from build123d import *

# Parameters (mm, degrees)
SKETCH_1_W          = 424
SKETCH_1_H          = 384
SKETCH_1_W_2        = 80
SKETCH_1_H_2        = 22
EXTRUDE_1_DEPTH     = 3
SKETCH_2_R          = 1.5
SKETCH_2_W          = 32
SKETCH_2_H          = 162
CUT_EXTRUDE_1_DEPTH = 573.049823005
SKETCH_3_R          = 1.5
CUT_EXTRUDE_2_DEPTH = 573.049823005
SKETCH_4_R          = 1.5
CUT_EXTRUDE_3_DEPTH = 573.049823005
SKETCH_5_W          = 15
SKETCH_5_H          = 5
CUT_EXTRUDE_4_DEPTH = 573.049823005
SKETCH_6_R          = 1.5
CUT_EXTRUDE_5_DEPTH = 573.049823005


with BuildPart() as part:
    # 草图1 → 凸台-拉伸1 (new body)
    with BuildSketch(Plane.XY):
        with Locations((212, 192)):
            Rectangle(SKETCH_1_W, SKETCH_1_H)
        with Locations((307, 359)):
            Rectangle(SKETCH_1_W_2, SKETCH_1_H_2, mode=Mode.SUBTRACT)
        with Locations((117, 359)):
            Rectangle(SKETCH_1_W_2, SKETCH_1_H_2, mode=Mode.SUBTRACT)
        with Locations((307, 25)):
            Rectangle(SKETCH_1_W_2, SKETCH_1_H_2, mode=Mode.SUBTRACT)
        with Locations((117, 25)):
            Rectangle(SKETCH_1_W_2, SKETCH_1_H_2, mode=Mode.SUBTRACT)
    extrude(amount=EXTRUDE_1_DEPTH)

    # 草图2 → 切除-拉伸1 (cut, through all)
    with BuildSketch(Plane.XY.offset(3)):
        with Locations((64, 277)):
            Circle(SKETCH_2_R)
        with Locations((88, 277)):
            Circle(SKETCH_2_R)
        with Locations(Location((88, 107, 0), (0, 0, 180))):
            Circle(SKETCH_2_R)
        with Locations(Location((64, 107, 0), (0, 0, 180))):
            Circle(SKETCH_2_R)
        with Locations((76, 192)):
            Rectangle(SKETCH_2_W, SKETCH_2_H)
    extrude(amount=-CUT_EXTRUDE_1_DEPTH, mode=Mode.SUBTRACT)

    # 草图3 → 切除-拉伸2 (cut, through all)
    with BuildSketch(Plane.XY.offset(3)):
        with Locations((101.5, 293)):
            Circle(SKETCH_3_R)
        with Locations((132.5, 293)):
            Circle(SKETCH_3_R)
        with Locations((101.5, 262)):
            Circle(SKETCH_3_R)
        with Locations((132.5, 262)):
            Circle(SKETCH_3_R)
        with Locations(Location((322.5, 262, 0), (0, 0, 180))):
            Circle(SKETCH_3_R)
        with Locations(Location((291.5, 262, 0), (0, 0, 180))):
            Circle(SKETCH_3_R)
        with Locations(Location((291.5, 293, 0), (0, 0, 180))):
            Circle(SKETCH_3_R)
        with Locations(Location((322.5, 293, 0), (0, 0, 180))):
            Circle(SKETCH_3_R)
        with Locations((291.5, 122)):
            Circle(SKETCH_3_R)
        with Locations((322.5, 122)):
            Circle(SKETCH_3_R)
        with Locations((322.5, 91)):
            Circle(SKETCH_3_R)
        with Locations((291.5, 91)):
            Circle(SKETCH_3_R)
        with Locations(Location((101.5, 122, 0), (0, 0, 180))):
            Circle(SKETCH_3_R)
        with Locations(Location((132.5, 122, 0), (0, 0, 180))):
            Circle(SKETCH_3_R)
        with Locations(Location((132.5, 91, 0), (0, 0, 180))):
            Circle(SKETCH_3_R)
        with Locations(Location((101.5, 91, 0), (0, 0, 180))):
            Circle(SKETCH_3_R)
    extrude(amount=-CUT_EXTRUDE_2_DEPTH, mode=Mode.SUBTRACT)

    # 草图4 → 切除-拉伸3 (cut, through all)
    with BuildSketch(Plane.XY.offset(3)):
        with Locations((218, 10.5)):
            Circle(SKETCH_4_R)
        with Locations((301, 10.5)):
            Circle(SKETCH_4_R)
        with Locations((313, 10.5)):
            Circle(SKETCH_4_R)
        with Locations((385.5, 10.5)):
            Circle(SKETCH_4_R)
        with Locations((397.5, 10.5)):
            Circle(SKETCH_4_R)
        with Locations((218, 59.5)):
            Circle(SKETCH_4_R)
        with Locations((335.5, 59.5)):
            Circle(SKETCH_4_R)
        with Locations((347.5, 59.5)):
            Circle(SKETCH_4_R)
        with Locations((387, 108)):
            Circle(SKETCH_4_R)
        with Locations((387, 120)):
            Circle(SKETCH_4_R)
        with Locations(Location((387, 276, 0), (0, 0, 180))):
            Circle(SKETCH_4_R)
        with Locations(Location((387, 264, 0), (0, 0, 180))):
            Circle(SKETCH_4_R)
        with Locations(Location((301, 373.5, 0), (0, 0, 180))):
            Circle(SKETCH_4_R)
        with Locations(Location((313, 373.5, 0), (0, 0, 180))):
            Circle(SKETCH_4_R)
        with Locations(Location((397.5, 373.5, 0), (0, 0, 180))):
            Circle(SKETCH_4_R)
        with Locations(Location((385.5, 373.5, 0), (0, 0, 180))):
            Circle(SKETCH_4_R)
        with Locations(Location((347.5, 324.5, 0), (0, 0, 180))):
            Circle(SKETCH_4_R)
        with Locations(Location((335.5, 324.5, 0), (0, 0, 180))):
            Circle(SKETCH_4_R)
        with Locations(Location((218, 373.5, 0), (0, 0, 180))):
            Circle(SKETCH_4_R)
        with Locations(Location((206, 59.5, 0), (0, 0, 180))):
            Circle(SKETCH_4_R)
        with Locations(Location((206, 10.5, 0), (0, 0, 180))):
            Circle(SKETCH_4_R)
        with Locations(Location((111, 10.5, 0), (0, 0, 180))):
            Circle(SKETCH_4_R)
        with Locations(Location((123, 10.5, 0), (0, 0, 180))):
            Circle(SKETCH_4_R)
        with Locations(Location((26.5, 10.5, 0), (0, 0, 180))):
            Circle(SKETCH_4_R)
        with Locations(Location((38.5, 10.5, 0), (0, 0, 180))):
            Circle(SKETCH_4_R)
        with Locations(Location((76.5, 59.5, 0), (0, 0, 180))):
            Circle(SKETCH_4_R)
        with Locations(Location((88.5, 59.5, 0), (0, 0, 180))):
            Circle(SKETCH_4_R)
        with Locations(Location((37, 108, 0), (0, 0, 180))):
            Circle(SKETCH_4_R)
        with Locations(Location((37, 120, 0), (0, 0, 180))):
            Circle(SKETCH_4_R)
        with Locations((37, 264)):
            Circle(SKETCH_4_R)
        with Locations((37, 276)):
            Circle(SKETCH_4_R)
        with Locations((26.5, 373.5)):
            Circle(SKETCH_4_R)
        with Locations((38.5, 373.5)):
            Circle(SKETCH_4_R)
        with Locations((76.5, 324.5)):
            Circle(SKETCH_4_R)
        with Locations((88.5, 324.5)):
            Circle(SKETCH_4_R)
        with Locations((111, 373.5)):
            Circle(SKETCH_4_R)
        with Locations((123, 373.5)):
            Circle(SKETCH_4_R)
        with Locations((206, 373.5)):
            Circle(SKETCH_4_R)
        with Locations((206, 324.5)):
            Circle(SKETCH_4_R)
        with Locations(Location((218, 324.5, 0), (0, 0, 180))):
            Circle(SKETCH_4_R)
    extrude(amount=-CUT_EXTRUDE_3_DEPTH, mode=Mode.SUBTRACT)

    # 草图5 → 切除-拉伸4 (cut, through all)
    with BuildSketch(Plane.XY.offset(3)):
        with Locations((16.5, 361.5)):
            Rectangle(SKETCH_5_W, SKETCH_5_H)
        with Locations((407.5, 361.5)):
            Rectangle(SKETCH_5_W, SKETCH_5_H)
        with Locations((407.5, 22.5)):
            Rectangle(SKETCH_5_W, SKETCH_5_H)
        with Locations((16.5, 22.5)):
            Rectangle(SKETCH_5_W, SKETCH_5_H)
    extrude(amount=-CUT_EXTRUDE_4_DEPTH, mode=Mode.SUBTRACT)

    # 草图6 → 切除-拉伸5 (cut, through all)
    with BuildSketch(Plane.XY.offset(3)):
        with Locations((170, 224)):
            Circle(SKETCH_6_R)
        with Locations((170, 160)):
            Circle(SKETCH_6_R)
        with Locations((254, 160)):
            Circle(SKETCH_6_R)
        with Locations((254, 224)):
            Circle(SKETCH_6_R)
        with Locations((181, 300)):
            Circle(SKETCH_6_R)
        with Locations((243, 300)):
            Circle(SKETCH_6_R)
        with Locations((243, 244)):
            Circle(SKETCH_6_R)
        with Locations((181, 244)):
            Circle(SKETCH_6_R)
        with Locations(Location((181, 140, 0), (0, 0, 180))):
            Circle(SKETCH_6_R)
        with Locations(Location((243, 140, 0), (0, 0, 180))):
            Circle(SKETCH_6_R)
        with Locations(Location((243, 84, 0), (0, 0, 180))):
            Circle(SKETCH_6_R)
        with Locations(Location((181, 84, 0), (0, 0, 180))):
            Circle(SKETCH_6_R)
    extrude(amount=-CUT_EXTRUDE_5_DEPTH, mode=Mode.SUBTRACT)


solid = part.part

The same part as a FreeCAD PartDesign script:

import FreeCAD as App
import Part
import Sketcher


def add_polygon(sketch, points):
    """Adds a closed chain of lines whose ends are joined by coincident constraints."""
    first, n = sketch.GeometryCount, len(points)
    for a, b in zip(points, points[1:] + points[:1]):
        sketch.addGeometry(Part.LineSegment(App.Vector(*a, 0), App.Vector(*b, 0)), False)
    for i in range(n):
        sketch.addConstraint(Sketcher.Constraint("Coincident", first + i, 2, first + (i + 1) % n, 1))

doc = App.newDocument("Part")
params = doc.addObject("Spreadsheet::Sheet", "Params")
for row, (alias, value) in enumerate([
    ("sketch1_width", "424 mm"),
    ("sketch1_width2", "80 mm"),
    ("sketch1_height", "384 mm"),
    ("sketch1_height2", "22 mm"),
    ("pad1_length", "3 mm"),
    ("sketch2_diameter", "3 mm"),
    ("sketch2_width", "32 mm"),
    ("sketch2_height", "162 mm"),
    ("sketch3_diameter", "3 mm"),
    ("sketch4_diameter", "3 mm"),
    ("sketch5_width", "15 mm"),
    ("sketch5_height", "5 mm"),
    ("sketch6_diameter", "3 mm"),
], start=1):
    params.set(f"A{row}", alias)
    params.set(f"B{row}", "=" + value)
    params.setAlias(f"B{row}", alias)

body = doc.addObject("PartDesign::Body", "Body")

sketch1 = body.newObject("Sketcher::SketchObject", "Sketch")
sketch1.AttachmentSupport = (doc.getObject("XY_Plane"), [""])
sketch1.MapMode = "FlatFace"
add_polygon(sketch1, [(0, 384), (0, 0), (424, 0), (424, 384)])
add_polygon(sketch1, [(157, 14), (77, 14), (77, 36), (157, 36)])
add_polygon(sketch1, [(347, 14), (267, 14), (267, 36), (347, 36)])
add_polygon(sketch1, [(157, 348), (77, 348), (77, 370), (157, 370)])
add_polygon(sketch1, [(347, 348), (267, 348), (267, 370), (347, 370)])
sketch1.addConstraint(Sketcher.Constraint("Vertical", 0))
sketch1.addConstraint(Sketcher.Constraint("Horizontal", 1))
sketch1.addConstraint(Sketcher.Constraint("Vertical", 2))
sketch1.addConstraint(Sketcher.Constraint("Horizontal", 3))
sketch1.addConstraint(Sketcher.Constraint("Horizontal", 4))
sketch1.addConstraint(Sketcher.Constraint("Vertical", 5))
sketch1.addConstraint(Sketcher.Constraint("Horizontal", 6))
sketch1.addConstraint(Sketcher.Constraint("Vertical", 7))
sketch1.addConstraint(Sketcher.Constraint("Horizontal", 8))
sketch1.addConstraint(Sketcher.Constraint("Vertical", 9))
sketch1.addConstraint(Sketcher.Constraint("Horizontal", 10))
sketch1.addConstraint(Sketcher.Constraint("Vertical", 11))
sketch1.addConstraint(Sketcher.Constraint("Horizontal", 12))
sketch1.addConstraint(Sketcher.Constraint("Vertical", 13))
sketch1.addConstraint(Sketcher.Constraint("Horizontal", 14))
sketch1.addConstraint(Sketcher.Constraint("Vertical", 15))
sketch1.addConstraint(Sketcher.Constraint("Horizontal", 16))
sketch1.addConstraint(Sketcher.Constraint("Vertical", 17))
sketch1.addConstraint(Sketcher.Constraint("Horizontal", 18))
sketch1.addConstraint(Sketcher.Constraint("Vertical", 19))
sketch1.addConstraint(Sketcher.Constraint("Coincident", 0, 2, -1, 1))
sketch1.addConstraint(Sketcher.Constraint("Horizontal", 7, 2, 8, 2))
sketch1.addConstraint(Sketcher.Constraint("Horizontal", 6, 2, 9, 2))
sketch1.addConstraint(Sketcher.Constraint("Horizontal", 15, 2, 16, 2))
sketch1.addConstraint(Sketcher.Constraint("Horizontal", 14, 2, 17, 2))
sketch1.addConstraint(Sketcher.Constraint("Vertical", 5, 2, 12, 2))
sketch1.addConstraint(Sketcher.Constraint("Vertical", 7, 2, 14, 2))
sketch1.addConstraint(Sketcher.Constraint("Vertical", 9, 2, 16, 2))
sketch1.addConstraint(Sketcher.Constraint("Vertical", 11, 2, 18, 2))
sketch1.addConstraint(Sketcher.Constraint("Equal", 6, 8))
sketch1.addConstraint(Sketcher.Constraint("Equal", 11, 13))
sketch1.addConstraint(Sketcher.Constraint("DistanceX", 1, 1, 1, 2, 424.0))
sketch1.addConstraint(Sketcher.Constraint("DistanceX", 4, 2, 4, 1, 80.0))
sketch1.addConstraint(Sketcher.Constraint("DistanceY", 0, 2, 0, 1, 384.0))
sketch1.addConstraint(Sketcher.Constraint("DistanceY", 5, 1, 5, 2, 22.0))
sketch1.addConstraint(Sketcher.Constraint("DistanceX", -1, 1, 4, 2, 77.0))
sketch1.addConstraint(Sketcher.Constraint("DistanceY", -1, 1, 4, 2, 14.0))
sketch1.addConstraint(Sketcher.Constraint("DistanceX", -1, 1, 8, 2, 267.0))
sketch1.addConstraint(Sketcher.Constraint("DistanceY", -1, 1, 12, 2, 348.0))
sketch1.setExpression("Constraints[51]", "Params.sketch1_width")
sketch1.setExpression("Constraints[52]", "Params.sketch1_width2")
sketch1.setExpression("Constraints[53]", "Params.sketch1_height")
sketch1.setExpression("Constraints[54]", "Params.sketch1_height2")
pad1 = body.newObject("PartDesign::Pad", "Pad")
pad1.Profile = sketch1
pad1.setExpression("Length", "Params.pad1_length")

sketch2 = body.newObject("Sketcher::SketchObject", "Sketch001")
sketch2.AttachmentSupport = (doc.getObject("XY_Plane"), [""])
sketch2.MapMode = "FlatFace"
sketch2.AttachmentOffset = App.Placement(App.Vector(0, 0, 3), App.Rotation())
sketch2.addGeometry(Part.Circle(App.Vector(64, 277, 0), App.Vector(0, 0, 1), 1.5), False)
sketch2.addGeometry(Part.Circle(App.Vector(88, 277, 0), App.Vector(0, 0, 1), 1.5), False)
sketch2.addGeometry(Part.Circle(App.Vector(88, 107, 0), App.Vector(0, 0, 1), 1.5), False)
sketch2.addGeometry(Part.Circle(App.Vector(64, 107, 0), App.Vector(0, 0, 1), 1.5), False)
add_polygon(sketch2, [(60, 273), (60, 111), (92, 111), (92, 273)])
sketch2.addConstraint(Sketcher.Constraint("Vertical", 4))
sketch2.addConstraint(Sketcher.Constraint("Horizontal", 5))
sketch2.addConstraint(Sketcher.Constraint("Vertical", 6))
sketch2.addConstraint(Sketcher.Constraint("Horizontal", 7))
sketch2.addConstraint(Sketcher.Constraint("Equal", 0, 1))
sketch2.addConstraint(Sketcher.Constraint("Equal", 1, 2))
sketch2.addConstraint(Sketcher.Constraint("Equal", 2, 3))
sketch2.addConstraint(Sketcher.Constraint("Horizontal", 0, 3, 1, 3))
sketch2.addConstraint(Sketcher.Constraint("Horizontal", 2, 3, 3, 3))
sketch2.addConstraint(Sketcher.Constraint("Vertical", 1, 3, 2, 3))
sketch2.addConstraint(Sketcher.Constraint("Vertical", 0, 3, 3, 3))
sketch2.addConstraint(Sketcher.Constraint("Diameter", 0, 3.0))
sketch2.addConstraint(Sketcher.Constraint("DistanceX", 5, 1, 5, 2, 32.0))
sketch2.addConstraint(Sketcher.Constraint("DistanceY", 4, 2, 4, 1, 162.0))
sketch2.addConstraint(Sketcher.Constraint("DistanceX", -1, 1, 0, 3, 64.0))
sketch2.addConstraint(Sketcher.Constraint("DistanceY", -1, 1, 0, 3, 277.0))
sketch2.addConstraint(Sketcher.Constraint("DistanceX", -1, 1, 1, 3, 88.0))
sketch2.addConstraint(Sketcher.Constraint("DistanceY", -1, 1, 2, 3, 107.0))
sketch2.addConstraint(Sketcher.Constraint("DistanceX", -1, 1, 4, 2, 60.0))
sketch2.addConstraint(Sketcher.Constraint("DistanceY", -1, 1, 4, 2, 111.0))
sketch2.setExpression("Constraints[15]", "Params.sketch2_diameter")
sketch2.setExpression("Constraints[16]", "Params.sketch2_width")
sketch2.setExpression("Constraints[17]", "Params.sketch2_height")
pocket1 = body.newObject("PartDesign::Pocket", "Pocket")
pocket1.Profile = sketch2
pocket1.Type = "ThroughAll"

sketch3 = body.newObject("Sketcher::SketchObject", "Sketch002")
sketch3.AttachmentSupport = (doc.getObject("XY_Plane"), [""])
sketch3.MapMode = "FlatFace"
sketch3.AttachmentOffset = App.Placement(App.Vector(0, 0, 3), App.Rotation())
sketch3.addGeometry(Part.Circle(App.Vector(101.5, 293, 0), App.Vector(0, 0, 1), 1.5), False)
sketch3.addGeometry(Part.Circle(App.Vector(132.5, 293, 0), App.Vector(0, 0, 1), 1.5), False)
sketch3.addGeometry(Part.Circle(App.Vector(101.5, 262, 0), App.Vector(0, 0, 1), 1.5), False)
sketch3.addGeometry(Part.Circle(App.Vector(132.5, 262, 0), App.Vector(0, 0, 1), 1.5), False)
sketch3.addGeometry(Part.Circle(App.Vector(322.5, 262, 0), App.Vector(0, 0, 1), 1.5), False)
sketch3.addGeometry(Part.Circle(App.Vector(291.5, 262, 0), App.Vector(0, 0, 1), 1.5), False)
sketch3.addGeometry(Part.Circle(App.Vector(291.5, 293, 0), App.Vector(0, 0, 1), 1.5), False)
sketch3.addGeometry(Part.Circle(App.Vector(322.5, 293, 0), App.Vector(0, 0, 1), 1.5), False)
sketch3.addGeometry(Part.Circle(App.Vector(291.5, 122, 0), App.Vector(0, 0, 1), 1.5), False)
sketch3.addGeometry(Part.Circle(App.Vector(322.5, 122, 0), App.Vector(0, 0, 1), 1.5), False)
sketch3.addGeometry(Part.Circle(App.Vector(322.5, 91, 0), App.Vector(0, 0, 1), 1.5), False)
sketch3.addGeometry(Part.Circle(App.Vector(291.5, 91, 0), App.Vector(0, 0, 1), 1.5), False)
sketch3.addGeometry(Part.Circle(App.Vector(101.5, 122, 0), App.Vector(0, 0, 1), 1.5), False)
sketch3.addGeometry(Part.Circle(App.Vector(132.5, 122, 0), App.Vector(0, 0, 1), 1.5), False)
sketch3.addGeometry(Part.Circle(App.Vector(132.5, 91, 0), App.Vector(0, 0, 1), 1.5), False)
sketch3.addGeometry(Part.Circle(App.Vector(101.5, 91, 0), App.Vector(0, 0, 1), 1.5), False)
sketch3.addConstraint(Sketcher.Constraint("Equal", 0, 1))
sketch3.addConstraint(Sketcher.Constraint("Equal", 1, 2))
sketch3.addConstraint(Sketcher.Constraint("Equal", 2, 3))
sketch3.addConstraint(Sketcher.Constraint("Equal", 3, 4))
sketch3.addConstraint(Sketcher.Constraint("Equal", 4, 5))
sketch3.addConstraint(Sketcher.Constraint("Equal", 5, 6))
sketch3.addConstraint(Sketcher.Constraint("Equal", 6, 7))
sketch3.addConstraint(Sketcher.Constraint("Equal", 7, 8))
sketch3.addConstraint(Sketcher.Constraint("Equal", 8, 9))
sketch3.addConstraint(Sketcher.Constraint("Equal", 9, 10))
sketch3.addConstraint(Sketcher.Constraint("Equal", 10, 11))
sketch3.addConstraint(Sketcher.Constraint("Equal", 11, 12))
sketch3.addConstraint(Sketcher.Constraint("Equal", 12, 13))
sketch3.addConstraint(Sketcher.Constraint("Equal", 13, 14))
sketch3.addConstraint(Sketcher.Constraint("Equal", 14, 15))
sketch3.addConstraint(Sketcher.Constraint("Horizontal", 0, 3, 1, 3))
sketch3.addConstraint(Sketcher.Constraint("Horizontal", 2, 3, 3, 3))
sketch3.addConstraint(Sketcher.Constraint("Horizontal", 3, 3, 4, 3))
sketch3.addConstraint(Sketcher.Constraint("Horizontal", 4, 3, 5, 3))
sketch3.addConstraint(Sketcher.Constraint("Horizontal", 1, 3, 6, 3))
sketch3.addConstraint(Sketcher.Constraint("Horizontal", 6, 3, 7, 3))
sketch3.addConstraint(Sketcher.Constraint("Horizontal", 8, 3, 9, 3))
sketch3.addConstraint(Sketcher.Constraint("Horizontal", 10, 3, 11, 3))
sketch3.addConstraint(Sketcher.Constraint("Horizontal", 9, 3, 12, 3))
sketch3.addConstraint(Sketcher.Constraint("Horizontal", 12, 3, 13, 3))
sketch3.addConstraint(Sketcher.Constraint("Horizontal", 11, 3, 14, 3))
sketch3.addConstraint(Sketcher.Constraint("Horizontal", 14, 3, 15, 3))
sketch3.addConstraint(Sketcher.Constraint("Vertical", 0, 3, 2, 3))
sketch3.addConstraint(Sketcher.Constraint("Vertical", 1, 3, 3, 3))
sketch3.addConstraint(Sketcher.Constraint("Vertical", 5, 3, 6, 3))
sketch3.addConstraint(Sketcher.Constraint("Vertical", 4, 3, 7, 3))
sketch3.addConstraint(Sketcher.Constraint("Vertical", 6, 3, 8, 3))
sketch3.addConstraint(Sketcher.Constraint("Vertical", 7, 3, 9, 3))
sketch3.addConstraint(Sketcher.Constraint("Vertical", 9, 3, 10, 3))
sketch3.addConstraint(Sketcher.Constraint("Vertical", 8, 3, 11, 3))
sketch3.addConstraint(Sketcher.Constraint("Vertical", 2, 3, 12, 3))
sketch3.addConstraint(Sketcher.Constraint("Vertical", 3, 3, 13, 3))
sketch3.addConstraint(Sketcher.Constraint("Vertical", 13, 3, 14, 3))
sketch3.addConstraint(Sketcher.Constraint("Vertical", 12, 3, 15, 3))
sketch3.addConstraint(Sketcher.Constraint("Diameter", 0, 3.0))
sketch3.addConstraint(Sketcher.Constraint("DistanceY", -1, 1, 0, 3, 293.0))
sketch3.addConstraint(Sketcher.Constraint("DistanceY", -1, 1, 2, 3, 262.0))
sketch3.addConstraint(Sketcher.Constraint("DistanceY", -1, 1, 8, 3, 122.0))
sketch3.addConstraint(Sketcher.Constraint("DistanceY", -1, 1, 10, 3, 91.0))
sketch3.addConstraint(Sketcher.Constraint("DistanceX", 0, 3, 1, 3, 31.0))
sketch3.addConstraint(Sketcher.Constraint("DistanceX", 3, 3, 4, 3, 190.0))
sketch3.addConstraint(Sketcher.Constraint("DistanceX", 5, 3, 4, 3, 31.0))
sketch3.addConstraint(Sketcher.Constraint("DistanceX", -1, 1, 0, 3, 101.5))
sketch3.setExpression("Constraints[39]", "Params.sketch3_diameter")
pocket2 = body.newObject("PartDesign::Pocket", "Pocket001")
pocket2.Profile = sketch3
pocket2.Type = "ThroughAll"

sketch4 = body.newObject("Sketcher::SketchObject", "Sketch003")
sketch4.AttachmentSupport = (doc.getObject("XY_Plane"), [""])
sketch4.MapMode = "FlatFace"
sketch4.AttachmentOffset = App.Placement(App.Vector(0, 0, 3), App.Rotation())
sketch4.addGeometry(Part.Circle(App.Vector(218, 10.5, 0), App.Vector(0, 0, 1), 1.5), False)
sketch4.addGeometry(Part.Circle(App.Vector(301, 10.5, 0), App.Vector(0, 0, 1), 1.5), False)
sketch4.addGeometry(Part.Circle(App.Vector(313, 10.5, 0), App.Vector(0, 0, 1), 1.5), False)
sketch4.addGeometry(Part.Circle(App.Vector(385.5, 10.5, 0), App.Vector(0, 0, 1), 1.5), False)
sketch4.addGeometry(Part.Circle(App.Vector(397.5, 10.5, 0), App.Vector(0, 0, 1), 1.5), False)
sketch4.addGeometry(Part.Circle(App.Vector(218, 59.5, 0), App.Vector(0, 0, 1), 1.5), False)
sketch4.addGeometry(Part.Circle(App.Vector(335.5, 59.5, 0), App.Vector(0, 0, 1), 1.5), False)
sketch4.addGeometry(Part.Circle(App.Vector(347.5, 59.5, 0), App.Vector(0, 0, 1), 1.5), False)
sketch4.addGeometry(Part.Circle(App.Vector(387, 108, 0), App.Vector(0, 0, 1), 1.5), False)
sketch4.addGeometry(Part.Circle(App.Vector(387, 120, 0), App.Vector(0, 0, 1), 1.5), False)
sketch4.addGeometry(Part.Circle(App.Vector(387, 276, 0), App.Vector(0, 0, 1), 1.5), False)
sketch4.addGeometry(Part.Circle(App.Vector(387, 264, 0), App.Vector(0, 0, 1), 1.5), False)
sketch4.addGeometry(Part.Circle(App.Vector(301, 373.5, 0), App.Vector(0, 0, 1), 1.5), False)
sketch4.addGeometry(Part.Circle(App.Vector(313, 373.5, 0), App.Vector(0, 0, 1), 1.5), False)
sketch4.addGeometry(Part.Circle(App.Vector(397.5, 373.5, 0), App.Vector(0, 0, 1), 1.5), False)
sketch4.addGeometry(Part.Circle(App.Vector(385.5, 373.5, 0), App.Vector(0, 0, 1), 1.5), False)
sketch4.addGeometry(Part.Circle(App.Vector(347.5, 324.5, 0), App.Vector(0, 0, 1), 1.5), False)
sketch4.addGeometry(Part.Circle(App.Vector(335.5, 324.5, 0), App.Vector(0, 0, 1), 1.5), False)
sketch4.addGeometry(Part.Circle(App.Vector(218, 373.5, 0), App.Vector(0, 0, 1), 1.5), False)
sketch4.addGeometry(Part.Circle(App.Vector(206, 59.5, 0), App.Vector(0, 0, 1), 1.5), False)
sketch4.addGeometry(Part.Circle(App.Vector(206, 10.5, 0), App.Vector(0, 0, 1), 1.5), False)
sketch4.addGeometry(Part.Circle(App.Vector(111, 10.5, 0), App.Vector(0, 0, 1), 1.5), False)
sketch4.addGeometry(Part.Circle(App.Vector(123, 10.5, 0), App.Vector(0, 0, 1), 1.5), False)
sketch4.addGeometry(Part.Circle(App.Vector(26.5, 10.5, 0), App.Vector(0, 0, 1), 1.5), False)
sketch4.addGeometry(Part.Circle(App.Vector(38.5, 10.5, 0), App.Vector(0, 0, 1), 1.5), False)
sketch4.addGeometry(Part.Circle(App.Vector(76.5, 59.5, 0), App.Vector(0, 0, 1), 1.5), False)
sketch4.addGeometry(Part.Circle(App.Vector(88.5, 59.5, 0), App.Vector(0, 0, 1), 1.5), False)
sketch4.addGeometry(Part.Circle(App.Vector(37, 108, 0), App.Vector(0, 0, 1), 1.5), False)
sketch4.addGeometry(Part.Circle(App.Vector(37, 120, 0), App.Vector(0, 0, 1), 1.5), False)
sketch4.addGeometry(Part.Circle(App.Vector(37, 264, 0), App.Vector(0, 0, 1), 1.5), False)
sketch4.addGeometry(Part.Circle(App.Vector(37, 276, 0), App.Vector(0, 0, 1), 1.5), False)
sketch4.addGeometry(Part.Circle(App.Vector(26.5, 373.5, 0), App.Vector(0, 0, 1), 1.5), False)
sketch4.addGeometry(Part.Circle(App.Vector(38.5, 373.5, 0), App.Vector(0, 0, 1), 1.5), False)
sketch4.addGeometry(Part.Circle(App.Vector(76.5, 324.5, 0), App.Vector(0, 0, 1), 1.5), False)
sketch4.addGeometry(Part.Circle(App.Vector(88.5, 324.5, 0), App.Vector(0, 0, 1), 1.5), False)
sketch4.addGeometry(Part.Circle(App.Vector(111, 373.5, 0), App.Vector(0, 0, 1), 1.5), False)
sketch4.addGeometry(Part.Circle(App.Vector(123, 373.5, 0), App.Vector(0, 0, 1), 1.5), False)
sketch4.addGeometry(Part.Circle(App.Vector(206, 373.5, 0), App.Vector(0, 0, 1), 1.5), False)
sketch4.addGeometry(Part.Circle(App.Vector(206, 324.5, 0), App.Vector(0, 0, 1), 1.5), False)
sketch4.addGeometry(Part.Circle(App.Vector(218, 324.5, 0), App.Vector(0, 0, 1), 1.5), False)
sketch4.addConstraint(Sketcher.Constraint("Equal", 0, 1))
sketch4.addConstraint(Sketcher.Constraint("Equal", 1, 2))
sketch4.addConstraint(Sketcher.Constraint("Equal", 2, 3))
sketch4.addConstraint(Sketcher.Constraint("Equal", 3, 4))
sketch4.addConstraint(Sketcher.Constraint("Equal", 4, 5))
sketch4.addConstraint(Sketcher.Constraint("Equal", 5, 6))
sketch4.addConstraint(Sketcher.Constraint("Equal", 6, 7))
sketch4.addConstraint(Sketcher.Constraint("Equal", 7, 8))
sketch4.addConstraint(Sketcher.Constraint("Equal", 8, 9))
sketch4.addConstraint(Sketcher.Constraint("Equal", 9, 10))
sketch4.addConstraint(Sketcher.Constraint("Equal", 10, 11))
sketch4.addConstraint(Sketcher.Constraint("Equal", 11, 12))
sketch4.addConstraint(Sketcher.Constraint("Equal", 12, 13))
sketch4.addConstraint(Sketcher.Constraint("Equal", 13, 14))
sketch4.addConstraint(Sketcher.Constraint("Equal", 14, 15))
sketch4.addConstraint(Sketcher.Constraint("Equal", 15, 16))
sketch4.addConstraint(Sketcher.Constraint("Equal", 16, 17))
sketch4.addConstraint(Sketcher.Constraint("Equal", 17, 18))
sketch4.addConstraint(Sketcher.Constraint("Equal", 18, 19))
sketch4.addConstraint(Sketcher.Constraint("Equal", 19, 20))
sketch4.addConstraint(Sketcher.Constraint("Equal", 20, 21))
sketch4.addConstraint(Sketcher.Constraint("Equal", 21, 22))
sketch4.addConstraint(Sketcher.Constraint("Equal", 22, 23))
sketch4.addConstraint(Sketcher.Constraint("Equal", 23, 24))
sketch4.addConstraint(Sketcher.Constraint("Equal", 24, 25))
sketch4.addConstraint(Sketcher.Constraint("Equal", 25, 26))
sketch4.addConstraint(Sketcher.Constraint("Equal", 26, 27))
sketch4.addConstraint(Sketcher.Constraint("Equal", 27, 28))
sketch4.addConstraint(Sketcher.Constraint("Equal", 28, 29))
sketch4.addConstraint(Sketcher.Constraint("Equal", 29, 30))
sketch4.addConstraint(Sketcher.Constraint("Equal", 30, 31))
sketch4.addConstraint(Sketcher.Constraint("Equal", 31, 32))
sketch4.addConstraint(Sketcher.Constraint("Equal", 32, 33))
sketch4.addConstraint(Sketcher.Constraint("Equal", 33, 34))
sketch4.addConstraint(Sketcher.Constraint("Equal", 34, 35))
sketch4.addConstraint(Sketcher.Constraint("Equal", 35, 36))
sketch4.addConstraint(Sketcher.Constraint("Equal", 36, 37))
sketch4.addConstraint(Sketcher.Constraint("Equal", 37, 38))
sketch4.addConstraint(Sketcher.Constraint("Equal", 38, 39))
sketch4.addConstraint(Sketcher.Constraint("Horizontal", 0, 3, 1, 3))
sketch4.addConstraint(Sketcher.Constraint("Horizontal", 1, 3, 2, 3))
sketch4.addConstraint(Sketcher.Constraint("Horizontal", 2, 3, 3, 3))
sketch4.addConstraint(Sketcher.Constraint("Horizontal", 3, 3, 4, 3))
sketch4.addConstraint(Sketcher.Constraint("Horizontal", 5, 3, 6, 3))
sketch4.addConstraint(Sketcher.Constraint("Horizontal", 6, 3, 7, 3))
sketch4.addConstraint(Sketcher.Constraint("Horizontal", 12, 3, 13, 3))
sketch4.addConstraint(Sketcher.Constraint("Horizontal", 13, 3, 14, 3))
sketch4.addConstraint(Sketcher.Constraint("Horizontal", 14, 3, 15, 3))
sketch4.addConstraint(Sketcher.Constraint("Horizontal", 16, 3, 17, 3))
sketch4.addConstraint(Sketcher.Constraint("Horizontal", 15, 3, 18, 3))
sketch4.addConstraint(Sketcher.Constraint("Horizontal", 7, 3, 19, 3))
sketch4.addConstraint(Sketcher.Constraint("Horizontal", 4, 3, 20, 3))
sketch4.addConstraint(Sketcher.Constraint("Horizontal", 20, 3, 21, 3))
sketch4.addConstraint(Sketcher.Constraint("Horizontal", 21, 3, 22, 3))
sketch4.addConstraint(Sketcher.Constraint("Horizontal", 22, 3, 23, 3))
sketch4.addConstraint(Sketcher.Constraint("Horizontal", 23, 3, 24, 3))
sketch4.addConstraint(Sketcher.Constraint("Horizontal", 19, 3, 25, 3))
sketch4.addConstraint(Sketcher.Constraint("Horizontal", 25, 3, 26, 3))
sketch4.addConstraint(Sketcher.Constraint("Horizontal", 8, 3, 27, 3))
sketch4.addConstraint(Sketcher.Constraint("Horizontal", 9, 3, 28, 3))
sketch4.addConstraint(Sketcher.Constraint("Horizontal", 11, 3, 29, 3))
sketch4.addConstraint(Sketcher.Constraint("Horizontal", 10, 3, 30, 3))
sketch4.addConstraint(Sketcher.Constraint("Horizontal", 18, 3, 31, 3))
sketch4.addConstraint(Sketcher.Constraint("Horizontal", 31, 3, 32, 3))
sketch4.addConstraint(Sketcher.Constraint("Horizontal", 17, 3, 33, 3))
sketch4.addConstraint(Sketcher.Constraint("Horizontal", 33, 3, 34, 3))
sketch4.addConstraint(Sketcher.Constraint("Horizontal", 32, 3, 35, 3))
sketch4.addConstraint(Sketcher.Constraint("Horizontal", 35, 3, 36, 3))
sketch4.addConstraint(Sketcher.Constraint("Horizontal", 36, 3, 37, 3))
sketch4.addConstraint(Sketcher.Constraint("Horizontal", 34, 3, 38, 3))
sketch4.addConstraint(Sketcher.Constraint("Horizontal", 38, 3, 39, 3))
sketch4.addConstraint(Sketcher.Constraint("Vertical", 0, 3, 5, 3))
sketch4.addConstraint(Sketcher.Constraint("Vertical", 8, 3, 9, 3))
sketch4.addConstraint(Sketcher.Constraint("Vertical", 9, 3, 10, 3))
sketch4.addConstraint(Sketcher.Constraint("Vertical", 10, 3, 11, 3))
sketch4.addConstraint(Sketcher.Constraint("Vertical", 1, 3, 12, 3))
sketch4.addConstraint(Sketcher.Constraint("Vertical", 2, 3, 13, 3))
sketch4.addConstraint(Sketcher.Constraint("Vertical", 4, 3, 14, 3))
sketch4.addConstraint(Sketcher.Constraint("Vertical", 3, 3, 15, 3))
sketch4.addConstraint(Sketcher.Constraint("Vertical", 7, 3, 16, 3))
sketch4.addConstraint(Sketcher.Constraint("Vertical", 6, 3, 17, 3))
sketch4.addConstraint(Sketcher.Constraint("Vertical", 5, 3, 18, 3))
sketch4.addConstraint(Sketcher.Constraint("Vertical", 19, 3, 20, 3))
sketch4.addConstraint(Sketcher.Constraint("Vertical", 27, 3, 28, 3))
sketch4.addConstraint(Sketcher.Constraint("Vertical", 28, 3, 29, 3))
sketch4.addConstraint(Sketcher.Constraint("Vertical", 29, 3, 30, 3))
sketch4.addConstraint(Sketcher.Constraint("Vertical", 23, 3, 31, 3))
sketch4.addConstraint(Sketcher.Constraint("Vertical", 24, 3, 32, 3))
sketch4.addConstraint(Sketcher.Constraint("Vertical", 25, 3, 33, 3))
sketch4.addConstraint(Sketcher.Constraint("Vertical", 26, 3, 34, 3))
sketch4.addConstraint(Sketcher.Constraint("Vertical", 21, 3, 35, 3))
sketch4.addConstraint(Sketcher.Constraint("Vertical", 22, 3, 36, 3))
sketch4.addConstraint(Sketcher.Constraint("Vertical", 20, 3, 37, 3))
sketch4.addConstraint(Sketcher.Constraint("Vertical", 37, 3, 38, 3))
sketch4.addConstraint(Sketcher.Constraint("Vertical", 18, 3, 39, 3))
sketch4.addConstraint(Sketcher.Constraint("Diameter", 0, 3.0))
sketch4.addConstraint(Sketcher.Constraint("DistanceX", -1, 1, 0, 3, 218.0))
sketch4.addConstraint(Sketcher.Constraint("DistanceX", -1, 1, 1, 3, 301.0))
sketch4.addConstraint(Sketcher.Constraint("DistanceX", -1, 1, 2, 3, 313.0))
sketch4.addConstraint(Sketcher.Constraint("DistanceX", -1, 1, 8, 3, 387.0))
sketch4.addConstraint(Sketcher.Constraint("DistanceY", -1, 1, 8, 3, 108.0))
sketch4.addConstraint(Sketcher.Constraint("DistanceY", -1, 1, 9, 3, 120.0))
sketch4.addConstraint(Sketcher.Constraint("DistanceY", -1, 1, 10, 3, 276.0))
sketch4.addConstraint(Sketcher.Constraint("DistanceY", -1, 1, 11, 3, 264.0))
sketch4.addConstraint(Sketcher.Constraint("DistanceX", -1, 1, 19, 3, 206.0))
sketch4.addConstraint(Sketcher.Constraint("DistanceX", -1, 1, 21, 3, 111.0))
sketch4.addConstraint(Sketcher.Constraint("DistanceX", -1, 1, 22, 3, 123.0))
sketch4.addConstraint(Sketcher.Constraint("DistanceX", -1, 1, 27, 3, 37.0))
sketch4.addConstraint(Sketcher.Constraint("DistanceX", 3, 3, 4, 3, 12.0))
sketch4.addConstraint(Sketcher.Constraint("DistanceY", 0, 3, 5, 3, 49.0))
sketch4.addConstraint(Sketcher.Constraint("DistanceX", 6, 3, 3, 3, 50.0))
sketch4.addConstraint(Sketcher.Constraint("DistanceX", 6, 3, 7, 3, 12.0))
sketch4.addConstraint(Sketcher.Constraint("DistanceY", 6, 3, 12, 3, 314.0))
sketch4.addConstraint(Sketcher.Constraint("DistanceY", 16, 3, 13, 3, 49.0))
sketch4.addConstraint(Sketcher.Constraint("DistanceX", 23, 3, 24, 3, 12.0))
sketch4.addConstraint(Sketcher.Constraint("DistanceX", 24, 3, 25, 3, 38.0))
sketch4.addConstraint(Sketcher.Constraint("DistanceX", 25, 3, 26, 3, 12.0))
sketch4.addConstraint(Sketcher.Constraint("DistanceY", -1, 1, 0, 3, 10.5))
sketch4.addConstraint(Sketcher.Constraint("DistanceX", -1, 1, 3, 3, 385.5))
sketch4.addConstraint(Sketcher.Constraint("DistanceX", -1, 1, 23, 3, 26.5))
sketch4.setExpression("Constraints[95]", "Params.sketch4_diameter")
pocket3 = body.newObject("PartDesign::Pocket", "Pocket002")
pocket3.Profile = sketch4
pocket3.Type = "ThroughAll"

sketch5 = body.newObject("Sketcher::SketchObject", "Sketch004")
sketch5.AttachmentSupport = (doc.getObject("XY_Plane"), [""])
sketch5.MapMode = "FlatFace"
sketch5.AttachmentOffset = App.Placement(App.Vector(0, 0, 3), App.Rotation())
add_polygon(sketch5, [(9, 364), (9, 359), (24, 359), (24, 364)])
add_polygon(sketch5, [(400, 364), (400, 359), (415, 359), (415, 364)])
add_polygon(sketch5, [(400, 25), (400, 20), (415, 20), (415, 25)])
add_polygon(sketch5, [(9, 25), (9, 20), (24, 20), (24, 25)])
sketch5.addConstraint(Sketcher.Constraint("Vertical", 0))
sketch5.addConstraint(Sketcher.Constraint("Horizontal", 1))
sketch5.addConstraint(Sketcher.Constraint("Vertical", 2))
sketch5.addConstraint(Sketcher.Constraint("Horizontal", 3))
sketch5.addConstraint(Sketcher.Constraint("Vertical", 4))
sketch5.addConstraint(Sketcher.Constraint("Horizontal", 5))
sketch5.addConstraint(Sketcher.Constraint("Vertical", 6))
sketch5.addConstraint(Sketcher.Constraint("Horizontal", 7))
sketch5.addConstraint(Sketcher.Constraint("Vertical", 8))
sketch5.addConstraint(Sketcher.Constraint("Horizontal", 9))
sketch5.addConstraint(Sketcher.Constraint("Vertical", 10))
sketch5.addConstraint(Sketcher.Constraint("Horizontal", 11))
sketch5.addConstraint(Sketcher.Constraint("Vertical", 12))
sketch5.addConstraint(Sketcher.Constraint("Horizontal", 13))
sketch5.addConstraint(Sketcher.Constraint("Vertical", 14))
sketch5.addConstraint(Sketcher.Constraint("Horizontal", 15))
sketch5.addConstraint(Sketcher.Constraint("Horizontal", 1, 2, 4, 2))
sketch5.addConstraint(Sketcher.Constraint("Horizontal", 3, 2, 6, 2))
sketch5.addConstraint(Sketcher.Constraint("Horizontal", 9, 2, 12, 2))
sketch5.addConstraint(Sketcher.Constraint("Horizontal", 11, 2, 14, 2))
sketch5.addConstraint(Sketcher.Constraint("Vertical", 7, 2, 8, 2))
sketch5.addConstraint(Sketcher.Constraint("Vertical", 6, 2, 9, 2))
sketch5.addConstraint(Sketcher.Constraint("Vertical", 3, 2, 12, 2))
sketch5.addConstraint(Sketcher.Constraint("Vertical", 2, 2, 13, 2))
sketch5.addConstraint(Sketcher.Constraint("Equal", 3, 5))
sketch5.addConstraint(Sketcher.Constraint("Equal", 6, 8))
sketch5.addConstraint(Sketcher.Constraint("DistanceX", 1, 1, 1, 2, 15.0))
sketch5.addConstraint(Sketcher.Constraint("DistanceY", 0, 2, 0, 1, 5.0))
sketch5.addConstraint(Sketcher.Constraint("DistanceX", -1, 1, 0, 2, 9.0))
sketch5.addConstraint(Sketcher.Constraint("DistanceY", -1, 1, 0, 2, 359.0))
sketch5.addConstraint(Sketcher.Constraint("DistanceX", -1, 1, 4, 2, 400.0))
sketch5.addConstraint(Sketcher.Constraint("DistanceY", -1, 1, 8, 2, 20.0))
sketch5.setExpression("Constraints[42]", "Params.sketch5_width")
sketch5.setExpression("Constraints[43]", "Params.sketch5_height")
pocket4 = body.newObject("PartDesign::Pocket", "Pocket003")
pocket4.Profile = sketch5
pocket4.Type = "ThroughAll"

sketch6 = body.newObject("Sketcher::SketchObject", "Sketch005")
sketch6.AttachmentSupport = (doc.getObject("XY_Plane"), [""])
sketch6.MapMode = "FlatFace"
sketch6.AttachmentOffset = App.Placement(App.Vector(0, 0, 3), App.Rotation())
sketch6.addGeometry(Part.Circle(App.Vector(170, 224, 0), App.Vector(0, 0, 1), 1.5), False)
sketch6.addGeometry(Part.Circle(App.Vector(170, 160, 0), App.Vector(0, 0, 1), 1.5), False)
sketch6.addGeometry(Part.Circle(App.Vector(254, 160, 0), App.Vector(0, 0, 1), 1.5), False)
sketch6.addGeometry(Part.Circle(App.Vector(254, 224, 0), App.Vector(0, 0, 1), 1.5), False)
sketch6.addGeometry(Part.Circle(App.Vector(181, 300, 0), App.Vector(0, 0, 1), 1.5), False)
sketch6.addGeometry(Part.Circle(App.Vector(243, 300, 0), App.Vector(0, 0, 1), 1.5), False)
sketch6.addGeometry(Part.Circle(App.Vector(243, 244, 0), App.Vector(0, 0, 1), 1.5), False)
sketch6.addGeometry(Part.Circle(App.Vector(181, 244, 0), App.Vector(0, 0, 1), 1.5), False)
sketch6.addGeometry(Part.Circle(App.Vector(181, 140, 0), App.Vector(0, 0, 1), 1.5), False)
sketch6.addGeometry(Part.Circle(App.Vector(243, 140, 0), App.Vector(0, 0, 1), 1.5), False)
sketch6.addGeometry(Part.Circle(App.Vector(243, 84, 0), App.Vector(0, 0, 1), 1.5), False)
sketch6.addGeometry(Part.Circle(App.Vector(181, 84, 0), App.Vector(0, 0, 1), 1.5), False)
sketch6.addConstraint(Sketcher.Constraint("Equal", 0, 1))
sketch6.addConstraint(Sketcher.Constraint("Equal", 1, 2))
sketch6.addConstraint(Sketcher.Constraint("Equal", 2, 3))
sketch6.addConstraint(Sketcher.Constraint("Equal", 3, 4))
sketch6.addConstraint(Sketcher.Constraint("Equal", 4, 5))
sketch6.addConstraint(Sketcher.Constraint("Equal", 5, 6))
sketch6.addConstraint(Sketcher.Constraint("Equal", 6, 7))
sketch6.addConstraint(Sketcher.Constraint("Equal", 7, 8))
sketch6.addConstraint(Sketcher.Constraint("Equal", 8, 9))
sketch6.addConstraint(Sketcher.Constraint("Equal", 9, 10))
sketch6.addConstraint(Sketcher.Constraint("Equal", 10, 11))
sketch6.addConstraint(Sketcher.Constraint("Horizontal", 1, 3, 2, 3))
sketch6.addConstraint(Sketcher.Constraint("Horizontal", 0, 3, 3, 3))
sketch6.addConstraint(Sketcher.Constraint("Horizontal", 4, 3, 5, 3))
sketch6.addConstraint(Sketcher.Constraint("Horizontal", 6, 3, 7, 3))
sketch6.addConstraint(Sketcher.Constraint("Horizontal", 8, 3, 9, 3))
sketch6.addConstraint(Sketcher.Constraint("Horizontal", 10, 3, 11, 3))
sketch6.addConstraint(Sketcher.Constraint("Vertical", 0, 3, 1, 3))
sketch6.addConstraint(Sketcher.Constraint("Vertical", 2, 3, 3, 3))
sketch6.addConstraint(Sketcher.Constraint("Vertical", 5, 3, 6, 3))
sketch6.addConstraint(Sketcher.Constraint("Vertical", 4, 3, 7, 3))
sketch6.addConstraint(Sketcher.Constraint("Vertical", 7, 3, 8, 3))
sketch6.addConstraint(Sketcher.Constraint("Vertical", 6, 3, 9, 3))
sketch6.addConstraint(Sketcher.Constraint("Vertical", 9, 3, 10, 3))
sketch6.addConstraint(Sketcher.Constraint("Vertical", 8, 3, 11, 3))
sketch6.addConstraint(Sketcher.Constraint("Diameter", 0, 3.0))
sketch6.addConstraint(Sketcher.Constraint("DistanceX", -1, 1, 0, 3, 170.0))
sketch6.addConstraint(Sketcher.Constraint("DistanceY", -1, 1, 0, 3, 224.0))
sketch6.addConstraint(Sketcher.Constraint("DistanceY", -1, 1, 1, 3, 160.0))
sketch6.addConstraint(Sketcher.Constraint("DistanceX", -1, 1, 2, 3, 254.0))
sketch6.addConstraint(Sketcher.Constraint("DistanceX", -1, 1, 4, 3, 181.0))
sketch6.addConstraint(Sketcher.Constraint("DistanceY", -1, 1, 4, 3, 300.0))
sketch6.addConstraint(Sketcher.Constraint("DistanceX", -1, 1, 5, 3, 243.0))
sketch6.addConstraint(Sketcher.Constraint("DistanceY", -1, 1, 6, 3, 244.0))
sketch6.addConstraint(Sketcher.Constraint("DistanceY", -1, 1, 8, 3, 140.0))
sketch6.addConstraint(Sketcher.Constraint("DistanceY", -1, 1, 10, 3, 84.0))
sketch6.setExpression("Constraints[25]", "Params.sketch6_diameter")
pocket5 = body.newObject("PartDesign::Pocket", "Pocket004")
pocket5.Profile = sketch6
pocket5.Type = "ThroughAll"

doc.recompute()
